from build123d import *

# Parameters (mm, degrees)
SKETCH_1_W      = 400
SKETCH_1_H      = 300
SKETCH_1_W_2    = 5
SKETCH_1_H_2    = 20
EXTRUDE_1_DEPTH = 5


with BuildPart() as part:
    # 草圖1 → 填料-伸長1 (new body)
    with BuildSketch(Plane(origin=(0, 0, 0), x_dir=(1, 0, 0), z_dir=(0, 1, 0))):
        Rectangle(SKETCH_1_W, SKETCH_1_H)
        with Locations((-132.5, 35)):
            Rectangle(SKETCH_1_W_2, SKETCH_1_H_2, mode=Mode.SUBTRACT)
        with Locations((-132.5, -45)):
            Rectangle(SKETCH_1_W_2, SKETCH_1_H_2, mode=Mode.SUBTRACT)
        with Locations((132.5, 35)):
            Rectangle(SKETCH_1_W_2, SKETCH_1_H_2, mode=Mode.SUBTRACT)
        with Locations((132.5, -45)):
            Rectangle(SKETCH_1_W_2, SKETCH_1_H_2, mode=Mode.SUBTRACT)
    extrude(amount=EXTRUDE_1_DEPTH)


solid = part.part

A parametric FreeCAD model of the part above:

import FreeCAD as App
import Part
import Sketcher
from FreeCAD import Vector

doc = App.newDocument("Part")
params = doc.addObject("Spreadsheet::Sheet", "Params")
for row, (alias, value) in enumerate([
    ("sketch1_width", "400 mm"),
    ("sketch1_width2", "5 mm"),
    ("sketch1_height", "300 mm"),
    ("sketch1_height2", "20 mm"),
    ("pad1_length", "5 mm"),
], start=1):
    params.set(f"A{row}", alias)
    params.set(f"B{row}", "=" + value)
    params.setAlias(f"B{row}", alias)

body = doc.addObject("PartDesign::Body", "Body")

sketch1 = body.newObject("Sketcher::SketchObject", "Sketch")
sketch1.AttachmentSupport = (doc.getObject("XZ_Plane"), [""])
sketch1.MapMode = "FlatFace"
sketch1.addGeometry(Part.LineSegment(Vector(-200, -150, 0), Vector(-200, 150, 0)), False)
sketch1.addGeometry(Part.LineSegment(Vector(-200, 150, 0), Vector(200, 150, 0)), False)
sketch1.addGeometry(Part.LineSegment(Vector(200, 150, 0), Vector(200, -150, 0)), False)
sketch1.addGeometry(Part.LineSegment(Vector(200, -150, 0), Vector(-200, -150, 0)), False)
sketch1.addGeometry(Part.LineSegment(Vector(-130, 55, 0), Vector(-135, 55, 0)), False)
sketch1.addGeometry(Part.LineSegment(Vector(-135, 55, 0), Vector(-135, 35, 0)), False)
sketch1.addGeometry(Part.LineSegment(Vector(-135, 35, 0), Vector(-130, 35, 0)), False)
sketch1.addGeometry(Part.LineSegment(Vector(-130, 35, 0), Vector(-130, 55, 0)), False)
sketch1.addGeometry(Part.LineSegment(Vector(135, 55, 0), Vector(130, 55, 0)), False)
sketch1.addGeometry(Part.LineSegment(Vector(130, 55, 0), Vector(130, 35, 0)), False)
sketch1.addGeometry(Part.LineSegment(Vector(130, 35, 0), Vector(135, 35, 0)), False)
sketch1.addGeometry(Part.LineSegment(Vector(135, 35, 0), Vector(135, 55, 0)), False)
sketch1.addGeometry(Part.LineSegment(Vector(-130, -25, 0), Vector(-135, -25, 0)), False)
sketch1.addGeometry(Part.LineSegment(Vector(-135, -25, 0), Vector(-135, -45, 0)), False)
sketch1.addGeometry(Part.LineSegment(Vector(-135, -45, 0), Vector(-130, -45, 0)), False)
sketch1.addGeometry(Part.LineSegment(Vector(-130, -45, 0), Vector(-130, -25, 0)), False)
sketch1.addGeometry(Part.LineSegment(Vector(135, -25, 0), Vector(130, -25, 0)), False)
sketch1.addGeometry(Part.LineSegment(Vector(130, -25, 0), Vector(130, -45, 0)), False)
sketch1.addGeometry(Part.LineSegment(Vector(130, -45, 0), Vector(135, -45, 0)), False)
sketch1.addGeometry(Part.LineSegment(Vector(135, -45, 0), Vector(135, -25, 0)), False)
sketch1.addConstraint(Sketcher.Constraint("Coincident", 0, 2, 1, 1))
sketch1.addConstraint(Sketcher.Constraint("Coincident", 1, 2, 2, 1))
sketch1.addConstraint(Sketcher.Constraint("Coincident", 2, 2, 3, 1))
sketch1.addConstraint(Sketcher.Constraint("Coincident", 3, 2, 0, 1))
sketch1.addConstraint(Sketcher.Constraint("Coincident", 4, 2, 5, 1))
sketch1.addConstraint(Sketcher.Constraint("Coincident", 5, 2, 6, 1))
sketch1.addConstraint(Sketcher.Constraint("Coincident", 6, 2, 7, 1))
sketch1.addConstraint(Sketcher.Constraint("Coincident", 7, 2, 4, 1))
sketch1.addConstraint(Sketcher.Constraint("Coincident", 8, 2, 9, 1))
sketch1.addConstraint(Sketcher.Constraint("Coincident", 9, 2, 10, 1))
sketch1.addConstraint(Sketcher.Constraint("Coincident", 10, 2, 11, 1))
sketch1.addConstraint(Sketcher.Constraint("Coincident", 11, 2, 8, 1))
sketch1.addConstraint(Sketcher.Constraint("Coincident", 12, 2, 13, 1))
sketch1.addConstraint(Sketcher.Constraint("Coincident", 13, 2, 14, 1))
sketch1.addConstraint(Sketcher.Constraint("Coincident", 14, 2, 15, 1))
sketch1.addConstraint(Sketcher.Constraint("Coincident", 15, 2, 12, 1))
sketch1.addConstraint(Sketcher.Constraint("Coincident", 16, 2, 17, 1))
sketch1.addConstraint(Sketcher.Constraint("Coincident", 17, 2, 18, 1))
sketch1.addConstraint(Sketcher.Constraint("Coincident", 18, 2, 19, 1))
sketch1.addConstraint(Sketcher.Constraint("Coincident", 19, 2, 16, 1))
sketch1.addConstraint(Sketcher.Constraint("Vertical", 0))
sketch1.addConstraint(Sketcher.Constraint("Horizontal", 1))
sketch1.addConstraint(Sketcher.Constraint("Vertical", 2))
sketch1.addConstraint(Sketcher.Constraint("Horizontal", 3))
sketch1.addConstraint(Sketcher.Constraint("Horizontal", 4))
sketch1.addConstraint(Sketcher.Constraint("Vertical", 5))
sketch1.addConstraint(Sketcher.Constraint("Horizontal", 6))
sketch1.addConstraint(Sketcher.Constraint("Vertical", 7))
sketch1.addConstraint(Sketcher.Constraint("Horizontal", 8))
sketch1.addConstraint(Sketcher.Constraint("Vertical", 9))
sketch1.addConstraint(Sketcher.Constraint("Horizontal", 10))
sketch1.addConstraint(Sketcher.Constraint("Vertical", 11))
sketch1.addConstraint(Sketcher.Constraint("Horizontal", 12))
sketch1.addConstraint(Sketcher.Constraint("Vertical", 13))
sketch1.addConstraint(Sketcher.Constraint("Horizontal", 14))
sketch1.addConstraint(Sketcher.Constraint("Vertical", 15))
sketch1.addConstraint(Sketcher.Constraint("Horizontal", 16))
sketch1.addConstraint(Sketcher.Constraint("Vertical", 17))
sketch1.addConstraint(Sketcher.Constraint("Horizontal", 18))
sketch1.addConstraint(Sketcher.Constraint("Vertical", 19))
sketch1.addConstraint(Sketcher.Constraint("Symmetric", 0, 2, 2, 2, -1, 1))
sketch1.addConstraint(Sketcher.Constraint("Symmetric", 7, 2, 8, 2, -2))
sketch1.addConstraint(Sketcher.Constraint("Symmetric", 5, 2, 10, 2, -2))
sketch1.addConstraint(Sketcher.Constraint("Symmetric", 15, 2, 16, 2, -2))
sketch1.addConstraint(Sketcher.Constraint("Symmetric", 13, 2, 18, 2, -2))
sketch1.addConstraint(Sketcher.Constraint("Vertical", 5, 2, 12, 2))
sketch1.addConstraint(Sketcher.Constraint("Vertical", 7, 2, 14, 2))
sketch1.addConstraint(Sketcher.Constraint("Equal", 11, 13))
sketch1.addConstraint(Sketcher.Constraint("DistanceX", 1, 1, 1, 2, 400.0))
sketch1.addConstraint(Sketcher.Constraint("DistanceX", 4, 2, 4, 1, 5.0))
sketch1.addConstraint(Sketcher.Constraint("DistanceY", 0, 1, 0, 2, 300.0))
sketch1.addConstraint(Sketcher.Constraint("DistanceY", 5, 2, 5, 1, 20.0))
sketch1.addConstraint(Sketcher.Constraint("DistanceX", 4, 2, -1, 1, 135.0))
sketch1.addConstraint(Sketcher.Constraint("DistanceY", -1, 1, 4, 2, 55.0))
sketch1.addConstraint(Sketcher.Constraint("DistanceY", 12, 2, -1, 1, 25.0))
sketch1.setExpression("Constraints[48]", "Params.sketch1_width")
sketch1.setExpression("Constraints[49]", "Params.sketch1_width2")
sketch1.setExpression("Constraints[50]", "Params.sketch1_height")
sketch1.setExpression("Constraints[51]", "Params.sketch1_height2")
pad1 = body.newObject("PartDesign::Pad", "Pad")
pad1.Profile = sketch1
pad1.setExpression("Length", "Params.pad1_length")
pad1.Reversed = True

doc.recompute()
